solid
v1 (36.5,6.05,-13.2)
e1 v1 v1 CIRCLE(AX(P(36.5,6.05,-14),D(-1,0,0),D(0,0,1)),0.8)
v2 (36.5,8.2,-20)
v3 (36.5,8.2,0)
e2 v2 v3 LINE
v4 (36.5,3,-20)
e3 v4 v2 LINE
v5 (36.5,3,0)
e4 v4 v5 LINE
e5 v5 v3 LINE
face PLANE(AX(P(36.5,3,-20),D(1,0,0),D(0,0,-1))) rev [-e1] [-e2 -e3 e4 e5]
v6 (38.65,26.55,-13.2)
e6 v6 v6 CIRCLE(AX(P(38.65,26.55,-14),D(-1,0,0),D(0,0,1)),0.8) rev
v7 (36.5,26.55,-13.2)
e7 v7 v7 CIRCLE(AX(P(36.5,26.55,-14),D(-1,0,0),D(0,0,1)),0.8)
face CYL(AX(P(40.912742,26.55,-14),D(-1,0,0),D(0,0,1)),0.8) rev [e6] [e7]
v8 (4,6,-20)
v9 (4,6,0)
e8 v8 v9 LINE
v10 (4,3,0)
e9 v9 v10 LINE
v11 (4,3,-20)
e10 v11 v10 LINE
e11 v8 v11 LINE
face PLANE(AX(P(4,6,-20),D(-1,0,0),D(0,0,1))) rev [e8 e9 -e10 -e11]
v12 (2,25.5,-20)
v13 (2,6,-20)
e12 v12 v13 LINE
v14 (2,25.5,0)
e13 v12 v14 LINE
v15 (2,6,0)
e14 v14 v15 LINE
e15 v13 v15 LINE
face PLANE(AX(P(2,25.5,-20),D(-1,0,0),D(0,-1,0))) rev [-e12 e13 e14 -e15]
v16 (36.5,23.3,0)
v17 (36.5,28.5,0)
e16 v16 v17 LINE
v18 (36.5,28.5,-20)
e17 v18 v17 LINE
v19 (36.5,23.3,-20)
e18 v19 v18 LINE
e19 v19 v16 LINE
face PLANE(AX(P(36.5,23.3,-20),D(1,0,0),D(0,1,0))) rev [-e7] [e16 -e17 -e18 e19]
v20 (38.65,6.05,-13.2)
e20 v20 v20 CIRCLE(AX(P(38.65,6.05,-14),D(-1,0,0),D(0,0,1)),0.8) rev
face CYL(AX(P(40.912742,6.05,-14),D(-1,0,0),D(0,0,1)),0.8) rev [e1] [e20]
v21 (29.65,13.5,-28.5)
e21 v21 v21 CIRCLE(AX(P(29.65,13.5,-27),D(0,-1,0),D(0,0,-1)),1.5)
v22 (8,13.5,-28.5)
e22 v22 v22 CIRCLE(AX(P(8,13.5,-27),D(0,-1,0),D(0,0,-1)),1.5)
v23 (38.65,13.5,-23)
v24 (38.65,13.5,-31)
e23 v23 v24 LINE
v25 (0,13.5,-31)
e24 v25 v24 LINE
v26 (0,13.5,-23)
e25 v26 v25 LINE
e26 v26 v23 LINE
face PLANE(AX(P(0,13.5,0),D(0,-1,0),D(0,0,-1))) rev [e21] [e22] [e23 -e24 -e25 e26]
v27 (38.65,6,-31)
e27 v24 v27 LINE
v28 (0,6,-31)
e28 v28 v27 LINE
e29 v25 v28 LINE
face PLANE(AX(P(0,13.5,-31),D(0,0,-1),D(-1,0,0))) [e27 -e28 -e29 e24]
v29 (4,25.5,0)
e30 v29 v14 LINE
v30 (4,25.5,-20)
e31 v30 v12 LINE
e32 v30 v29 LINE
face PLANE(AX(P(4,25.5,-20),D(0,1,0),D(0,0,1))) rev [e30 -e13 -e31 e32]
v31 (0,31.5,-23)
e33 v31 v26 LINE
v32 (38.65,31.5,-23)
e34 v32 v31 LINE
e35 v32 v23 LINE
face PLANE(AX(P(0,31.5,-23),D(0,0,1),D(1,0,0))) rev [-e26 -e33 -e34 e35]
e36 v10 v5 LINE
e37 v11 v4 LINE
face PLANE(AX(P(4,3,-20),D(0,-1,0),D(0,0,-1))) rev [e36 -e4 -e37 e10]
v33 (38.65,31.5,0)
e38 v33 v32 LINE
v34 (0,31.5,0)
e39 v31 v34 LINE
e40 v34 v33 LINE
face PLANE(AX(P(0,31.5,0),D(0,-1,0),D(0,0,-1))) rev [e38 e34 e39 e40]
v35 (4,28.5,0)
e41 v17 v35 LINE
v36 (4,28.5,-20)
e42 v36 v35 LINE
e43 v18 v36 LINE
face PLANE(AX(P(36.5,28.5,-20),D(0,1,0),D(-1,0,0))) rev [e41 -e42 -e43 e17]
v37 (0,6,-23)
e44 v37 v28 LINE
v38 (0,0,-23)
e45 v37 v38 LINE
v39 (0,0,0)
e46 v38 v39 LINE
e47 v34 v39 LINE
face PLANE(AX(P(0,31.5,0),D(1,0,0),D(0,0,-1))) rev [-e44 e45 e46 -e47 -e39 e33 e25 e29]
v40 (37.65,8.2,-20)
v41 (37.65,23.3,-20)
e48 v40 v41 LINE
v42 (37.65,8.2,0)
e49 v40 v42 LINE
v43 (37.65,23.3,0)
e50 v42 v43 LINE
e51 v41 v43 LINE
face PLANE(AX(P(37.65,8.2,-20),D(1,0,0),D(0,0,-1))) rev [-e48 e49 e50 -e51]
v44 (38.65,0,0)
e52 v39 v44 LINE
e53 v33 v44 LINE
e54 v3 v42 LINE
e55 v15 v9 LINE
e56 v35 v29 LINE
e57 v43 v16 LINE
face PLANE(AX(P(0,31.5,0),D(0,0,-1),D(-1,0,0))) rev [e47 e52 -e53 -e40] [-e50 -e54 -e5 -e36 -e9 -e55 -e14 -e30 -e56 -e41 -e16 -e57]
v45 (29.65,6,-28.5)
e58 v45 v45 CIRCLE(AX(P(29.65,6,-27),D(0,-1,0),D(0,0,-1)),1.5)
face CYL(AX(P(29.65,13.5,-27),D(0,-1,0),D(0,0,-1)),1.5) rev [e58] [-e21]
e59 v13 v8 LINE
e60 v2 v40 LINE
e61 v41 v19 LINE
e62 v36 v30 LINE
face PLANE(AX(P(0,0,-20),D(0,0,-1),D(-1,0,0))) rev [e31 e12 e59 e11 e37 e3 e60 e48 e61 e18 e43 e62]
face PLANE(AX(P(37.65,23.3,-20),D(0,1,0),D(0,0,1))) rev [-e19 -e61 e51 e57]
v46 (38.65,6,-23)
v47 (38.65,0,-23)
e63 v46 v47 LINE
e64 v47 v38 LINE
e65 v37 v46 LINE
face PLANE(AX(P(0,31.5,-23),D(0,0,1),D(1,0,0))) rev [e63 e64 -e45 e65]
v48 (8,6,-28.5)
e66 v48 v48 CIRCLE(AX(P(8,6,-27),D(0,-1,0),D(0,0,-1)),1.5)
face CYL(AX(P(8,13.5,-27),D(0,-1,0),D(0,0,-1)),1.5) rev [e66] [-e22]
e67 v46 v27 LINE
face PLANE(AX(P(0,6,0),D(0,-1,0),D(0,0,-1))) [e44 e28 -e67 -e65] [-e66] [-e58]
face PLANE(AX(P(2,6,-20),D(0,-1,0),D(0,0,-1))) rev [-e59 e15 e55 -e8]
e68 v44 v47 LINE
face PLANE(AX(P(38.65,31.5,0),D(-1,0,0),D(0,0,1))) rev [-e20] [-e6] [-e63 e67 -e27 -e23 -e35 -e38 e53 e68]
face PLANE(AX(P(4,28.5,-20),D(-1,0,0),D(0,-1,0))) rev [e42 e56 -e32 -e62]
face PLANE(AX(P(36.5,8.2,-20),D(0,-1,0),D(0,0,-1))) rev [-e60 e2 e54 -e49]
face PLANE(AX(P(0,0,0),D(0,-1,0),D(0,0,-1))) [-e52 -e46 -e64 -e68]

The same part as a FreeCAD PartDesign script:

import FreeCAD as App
import Part
import Sketcher

V = App.Vector
Q = App.Units.Quantity

doc = App.newDocument("Part")
body = doc.addObject("PartDesign::Body", "Body")

sketch1 = body.newObject("Sketcher::SketchObject", "Sketch")
sketch1.AttachmentSupport = (doc.getObject("XZ_Plane"), [""])
sketch1.MapMode = "FlatFace"
sketch1.addGeometry([
    Part.LineSegment(V(0, -23, 0), V(0, 0, 0)),
    Part.LineSegment(V(0, 0, 0), V(38.65, 0, 0)),
    Part.LineSegment(V(38.65, 0, 0), V(38.65, -23, 0)),
    Part.LineSegment(V(38.65, -23, 0), V(0, -23, 0)),
], False)
sketch1.addConstraint([
    Sketcher.Constraint("Coincident", 0, 2, 1, 1),
    Sketcher.Constraint("Coincident", 1, 2, 2, 1),
    Sketcher.Constraint("Coincident", 2, 2, 3, 1),
    Sketcher.Constraint("Coincident", 3, 2, 0, 1),
    Sketcher.Constraint("Vertical", 0),
    Sketcher.Constraint("Horizontal", 1),
    Sketcher.Constraint("Vertical", 2),
    Sketcher.Constraint("Horizontal", 3),
    Sketcher.Constraint("Coincident", 0, 2, -1, 1),
    Sketcher.Constraint("DistanceY", 0, 1, 0, 2, Q("23 mm")),
    Sketcher.Constraint("DistanceX", 1, 1, 1, 2, Q("38.65 mm")),
])
pad1 = body.newObject("PartDesign::Pad", "Pad")
pad1.Profile = sketch1
pad1.Length = 31.5
pad1.Reversed = True

sketch2 = body.newObject("Sketcher::SketchObject", "Sketch001")
sketch2.AttachmentSupport = (doc.getObject("XY_Plane"), [""])
sketch2.MapMode = "FlatFace"
sketch2.addGeometry([
    Part.LineSegment(V(2, 25.5, 0), V(2, 6, 0)),
    Part.LineSegment(V(2, 6, 0), V(4, 6, 0)),
    Part.LineSegment(V(4, 6, 0), V(4, 3, 0)),
    Part.LineSegment(V(4, 3, 0), V(36.5, 3, 0)),
    Part.LineSegment(V(36.5, 3, 0), V(36.5, 8.2, 0)),
    Part.LineSegment(V(36.5, 8.2, 0), V(37.65, 8.2, 0)),
    Part.LineSegment(V(37.65, 8.2, 0), V(37.65, 23.3, 0)),
    Part.LineSegment(V(37.65, 23.3, 0), V(36.5, 23.3, 0)),
    Part.LineSegment(V(36.5, 23.3, 0), V(36.5, 28.5, 0)),
    Part.LineSegment(V(36.5, 28.5, 0), V(4, 28.5, 0)),
    Part.LineSegment(V(4, 28.5, 0), V(4, 25.5, 0)),
    Part.LineSegment(V(4, 25.5, 0), V(2, 25.5, 0)),
], False)
sketch2.addConstraint([
    Sketcher.Constraint("Coincident", 0, 2, 1, 1),
    Sketcher.Constraint("Coincident", 1, 2, 2, 1),
    Sketcher.Constraint("Coincident", 2, 2, 3, 1),
    Sketcher.Constraint("Coincident", 3, 2, 4, 1),
    Sketcher.Constraint("Coincident", 4, 2, 5, 1),
    Sketcher.Constraint("Coincident", 5, 2, 6, 1),
    Sketcher.Constraint("Coincident", 6, 2, 7, 1),
    Sketcher.Constraint("Coincident", 7, 2, 8, 1),
    Sketcher.Constraint("Coincident", 8, 2, 9, 1),
    Sketcher.Constraint("Coincident", 9, 2, 10, 1),
    Sketcher.Constraint("Coincident", 10, 2, 11, 1),
    Sketcher.Constraint("Coincident", 11, 2, 0, 1),
    Sketcher.Constraint("Vertical", 0),
    Sketcher.Constraint("Horizontal", 1),
    Sketcher.Constraint("Vertical", 2),
    Sketcher.Constraint("Horizontal", 3),
    Sketcher.Constraint("Vertical", 4),
    Sketcher.Constraint("Horizontal", 5),
    Sketcher.Constraint("Vertical", 6),
    Sketcher.Constraint("Horizontal", 7),
    Sketcher.Constraint("Vertical", 8),
    Sketcher.Constraint("Horizontal", 9),
    Sketcher.Constraint("Vertical", 10),
    Sketcher.Constraint("Horizontal", 11),
    Sketcher.Constraint("Vertical", 4, 2, 7, 2),
    Sketcher.Constraint("Vertical", 2, 2, 9, 2),
    Sketcher.Constraint("Equal", 4, 8),
    Sketcher.Constraint("Equal", 2, 10),
    Sketcher.Constraint("DistanceX", 1, 1, 1, 2, Q("2 mm")),
    Sketcher.Constraint("DistanceY", 2, 2, 2, 1, Q("3 mm")),
    Sketcher.Constraint("DistanceX", 3, 1, 3, 2, Q("32.5 mm")),
    Sketcher.Constraint("DistanceY", 0, 2, 0, 1, Q("19.5 mm")),
    Sketcher.Constraint("DistanceY", 4, 1, 4, 2, Q("5.2 mm")),
    Sketcher.Constraint("DistanceX", -1, 1, 0, 2, Q("2 mm")),
    Sketcher.Constraint("DistanceY", -1, 1, 0, 2, Q("6 mm")),
    Sketcher.Constraint("DistanceX", 5, 1, 5, 2, Q("1.15 mm")),
])
pocket1 = body.newObject("PartDesign::Pocket", "Pocket")
pocket1.Profile = sketch2
pocket1.Length = 20

sketch3 = body.newObject("Sketcher::SketchObject", "Sketch002")
sketch3.AttachmentSupport = (doc.getObject("YZ_Plane"), [""])
sketch3.MapMode = "FlatFace"
sketch3.AttachmentOffset = App.Placement(V(0, 0, 36.5), App.Rotation())
sketch3.addGeometry([
    Part.Circle(V(26.55, -14, 0), V(0, 0, 1), 0.8),
    Part.Circle(V(6.05, -14, 0), V(0, 0, 1), 0.8),
], False)
sketch3.addConstraint([
    Sketcher.Constraint("Equal", 0, 1),
    Sketcher.Constraint("Horizontal", 0, 3, 1, 3),
    Sketcher.Constraint("Diameter", 0, Q("1.6 mm")),
    Sketcher.Constraint("DistanceY", 0, 3, -1, 1, Q("14 mm")),
    Sketcher.Constraint("DistanceX", 1, 3, 0, 3, Q("20.5 mm")),
    Sketcher.Constraint("DistanceX", -1, 1, 0, 3, Q("26.55 mm")),
])
pocket2 = body.newObject("PartDesign::Pocket", "Pocket001")
pocket2.Profile = sketch3
pocket2.Length = 2.15
pocket2.Reversed = True

sketch4 = body.newObject("Sketcher::SketchObject", "Sketch003")
sketch4.AttachmentSupport = (doc.getObject("XZ_Plane"), [""])
sketch4.MapMode = "FlatFace"
sketch4.AttachmentOffset = App.Placement(V(0, 0, -6), App.Rotation())
sketch4.addGeometry([
    Part.LineSegment(V(0, -23, 0), V(0, -31, 0)),
    Part.LineSegment(V(0, -31, 0), V(38.65, -31, 0)),
    Part.LineSegment(V(38.65, -31, 0), V(38.65, -23, 0)),
    Part.LineSegment(V(38.65, -23, 0), V(0, -23, 0)),
    Part.Circle(V(8, -27, 0), V(0, 0, 1), 1.5),
    Part.Circle(V(29.65, -27, 0), V(0, 0, 1), 1.5),
], False)
sketch4.addConstraint([
    Sketcher.Constraint("Coincident", 0, 2, 1, 1),
    Sketcher.Constraint("Coincident", 1, 2, 2, 1),
    Sketcher.Constraint("Coincident", 2, 2, 3, 1),
    Sketcher.Constraint("Coincident", 3, 2, 0, 1),
    Sketcher.Constraint("Vertical", 0),
    Sketcher.Constraint("Horizontal", 1),
    Sketcher.Constraint("Vertical", 2),
    Sketcher.Constraint("Horizontal", 3),
    Sketcher.Constraint("Equal", 4, 5),
    Sketcher.Constraint("PointOnObject", 0, 2, -2),
    Sketcher.Constraint("Horizontal", 4, 3, 5, 3),
    Sketcher.Constraint("Diameter", 4, Q("3 mm")),
    Sketcher.Constraint("DistanceY", 0, 2, 0, 1, Q("8 mm")),
    Sketcher.Constraint("DistanceX", -1, 1, 4, 3, Q("8 mm")),
    Sketcher.Constraint("DistanceY", 4, 3, -1, 1, Q("27 mm")),
    Sketcher.Constraint("DistanceY", 0, 2, -1, 1, Q("31 mm")),
    Sketcher.Constraint("DistanceX", 5, 3, 1, 2, Q("9 mm")),
    Sketcher.Constraint("DistanceX", 1, 1, 1, 2, Q("38.65 mm")),
])
pad2 = body.newObject("PartDesign::Pad", "Pad001")
pad2.Profile = sketch4
pad2.Length = 7.5
pad2.Reversed = True

doc.recompute()
